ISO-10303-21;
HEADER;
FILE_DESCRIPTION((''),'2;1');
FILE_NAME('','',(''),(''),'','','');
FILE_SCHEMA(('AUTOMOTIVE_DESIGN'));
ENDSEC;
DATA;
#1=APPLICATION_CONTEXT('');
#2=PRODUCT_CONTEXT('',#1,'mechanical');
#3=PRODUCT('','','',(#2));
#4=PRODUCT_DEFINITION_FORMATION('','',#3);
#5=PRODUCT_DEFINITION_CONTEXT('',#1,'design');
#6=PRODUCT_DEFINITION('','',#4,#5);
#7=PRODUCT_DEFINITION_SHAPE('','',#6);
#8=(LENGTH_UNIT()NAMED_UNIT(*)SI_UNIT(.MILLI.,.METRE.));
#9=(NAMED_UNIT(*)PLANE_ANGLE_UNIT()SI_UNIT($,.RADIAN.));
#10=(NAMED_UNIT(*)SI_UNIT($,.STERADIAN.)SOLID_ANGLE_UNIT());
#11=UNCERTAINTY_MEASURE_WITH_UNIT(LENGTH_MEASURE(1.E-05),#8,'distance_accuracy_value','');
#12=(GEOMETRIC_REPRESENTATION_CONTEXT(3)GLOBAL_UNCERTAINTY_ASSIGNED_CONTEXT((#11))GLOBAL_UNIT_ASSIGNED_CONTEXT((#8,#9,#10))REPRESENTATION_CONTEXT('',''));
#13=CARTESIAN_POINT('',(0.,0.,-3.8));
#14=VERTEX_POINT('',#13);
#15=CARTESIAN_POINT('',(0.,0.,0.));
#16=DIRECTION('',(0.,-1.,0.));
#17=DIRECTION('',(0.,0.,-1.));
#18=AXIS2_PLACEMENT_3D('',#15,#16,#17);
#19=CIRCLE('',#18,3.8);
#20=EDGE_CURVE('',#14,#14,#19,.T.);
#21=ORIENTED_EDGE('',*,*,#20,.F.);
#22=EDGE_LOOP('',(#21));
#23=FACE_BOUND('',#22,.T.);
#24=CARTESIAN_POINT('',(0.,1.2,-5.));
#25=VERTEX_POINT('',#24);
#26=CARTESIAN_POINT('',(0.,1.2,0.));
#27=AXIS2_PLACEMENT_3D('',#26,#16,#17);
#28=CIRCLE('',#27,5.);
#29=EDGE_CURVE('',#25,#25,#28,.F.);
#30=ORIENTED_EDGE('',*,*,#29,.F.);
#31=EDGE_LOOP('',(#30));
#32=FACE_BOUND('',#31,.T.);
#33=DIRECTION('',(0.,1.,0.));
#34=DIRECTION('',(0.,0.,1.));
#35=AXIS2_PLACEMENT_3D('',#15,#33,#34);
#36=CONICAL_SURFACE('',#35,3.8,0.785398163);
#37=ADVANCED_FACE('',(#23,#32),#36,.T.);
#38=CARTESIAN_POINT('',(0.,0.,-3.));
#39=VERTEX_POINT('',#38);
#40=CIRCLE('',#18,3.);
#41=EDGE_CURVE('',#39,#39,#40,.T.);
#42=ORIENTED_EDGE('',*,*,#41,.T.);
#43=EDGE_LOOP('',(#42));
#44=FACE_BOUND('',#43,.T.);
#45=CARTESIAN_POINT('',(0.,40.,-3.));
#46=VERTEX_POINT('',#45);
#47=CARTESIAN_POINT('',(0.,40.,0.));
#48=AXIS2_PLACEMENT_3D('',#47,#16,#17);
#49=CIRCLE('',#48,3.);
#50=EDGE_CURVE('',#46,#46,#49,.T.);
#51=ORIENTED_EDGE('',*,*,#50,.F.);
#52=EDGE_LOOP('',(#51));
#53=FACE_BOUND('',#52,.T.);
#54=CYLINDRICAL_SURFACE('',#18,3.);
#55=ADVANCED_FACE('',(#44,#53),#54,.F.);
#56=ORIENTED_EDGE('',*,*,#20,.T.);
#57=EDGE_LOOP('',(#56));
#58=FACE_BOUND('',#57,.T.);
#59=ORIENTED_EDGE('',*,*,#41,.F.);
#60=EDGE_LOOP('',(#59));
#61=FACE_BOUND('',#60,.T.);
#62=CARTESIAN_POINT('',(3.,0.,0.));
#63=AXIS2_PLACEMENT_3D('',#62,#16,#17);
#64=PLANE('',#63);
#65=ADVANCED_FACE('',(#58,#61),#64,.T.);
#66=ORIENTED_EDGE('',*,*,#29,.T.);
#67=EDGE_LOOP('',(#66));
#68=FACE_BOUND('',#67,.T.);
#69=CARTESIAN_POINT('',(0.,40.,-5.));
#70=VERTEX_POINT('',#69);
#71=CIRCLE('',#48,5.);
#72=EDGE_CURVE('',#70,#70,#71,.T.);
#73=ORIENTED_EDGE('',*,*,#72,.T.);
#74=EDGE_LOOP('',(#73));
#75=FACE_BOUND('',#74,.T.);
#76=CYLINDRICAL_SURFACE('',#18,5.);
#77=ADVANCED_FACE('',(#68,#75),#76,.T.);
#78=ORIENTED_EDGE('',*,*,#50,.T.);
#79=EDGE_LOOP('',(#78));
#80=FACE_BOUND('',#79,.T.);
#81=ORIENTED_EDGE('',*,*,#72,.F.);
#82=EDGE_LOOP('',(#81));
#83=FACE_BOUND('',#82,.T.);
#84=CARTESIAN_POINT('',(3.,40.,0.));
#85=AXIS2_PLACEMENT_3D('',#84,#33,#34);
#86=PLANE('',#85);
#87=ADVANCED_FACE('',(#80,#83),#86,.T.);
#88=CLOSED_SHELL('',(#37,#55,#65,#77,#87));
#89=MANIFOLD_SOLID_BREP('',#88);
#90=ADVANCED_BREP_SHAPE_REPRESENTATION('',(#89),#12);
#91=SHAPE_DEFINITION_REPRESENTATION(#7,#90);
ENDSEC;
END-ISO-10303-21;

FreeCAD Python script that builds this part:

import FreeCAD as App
import Part
import Sketcher

V = App.Vector


def edges_at(feature, points):
    """Names of the edges that pass closest to the given points."""
    edges = feature.Shape.Edges
    near = lambda p: min(range(len(edges)), key=lambda i: edges[i].distToShape(Part.Vertex(*p))[0])
    return sorted({f"Edge{near(p) + 1}" for p in points})


def add_polygon(sketch, points):
    """Adds a closed chain of lines whose ends are joined by coincident constraints."""
    first, n = sketch.GeometryCount, len(points)
    for a, b in zip(points, points[1:] + points[:1]):
        sketch.addGeometry(Part.LineSegment(App.Vector(*a, 0), App.Vector(*b, 0)), False)
    for i in range(n):
        sketch.addConstraint(Sketcher.Constraint("Coincident", first + i, 2, first + (i + 1) % n, 1))

doc = App.newDocument("Part")
body = doc.addObject("PartDesign::Body", "Body")

# Sketch on XY plane
sketch1 = body.newObject("Sketcher::SketchObject", "Sketch")
sketch1.AttachmentSupport = (doc.getObject("XY_Plane"), [""])
sketch1.MapMode = "FlatFace"
add_polygon(sketch1, [(3, 40), (3, 0), (5, 0), (5, 40)])  # lines 0-3
sketch1.addConstraint(Sketcher.Constraint("Vertical", 0))
sketch1.addConstraint(Sketcher.Constraint("Horizontal", 1))
sketch1.addConstraint(Sketcher.Constraint("Vertical", 2))
sketch1.addConstraint(Sketcher.Constraint("Horizontal", 3))
sketch1.addConstraint(Sketcher.Constraint("PointOnObject", 0, 2, -1))
sketch1.addConstraint(Sketcher.Constraint("DistanceX", 1, 1, 1, 2, 2.0))
sketch1.addConstraint(Sketcher.Constraint("DistanceY", 0, 2, 0, 1, 40.0))
sketch1.addConstraint(Sketcher.Constraint("DistanceX", -1, 1, 0, 2, 3.0))
revolution = body.newObject("PartDesign::Revolution", "Revolution")
revolution.Profile = sketch1
revolution.ReferenceAxis = (sketch1, ["V_Axis"])
revolution.Angle = 360
doc.recompute()

chamfer = body.newObject("PartDesign::Chamfer", "Chamfer")
chamfer.Base = (revolution, edges_at(revolution, [(-5, 0, 0)]))
chamfer.Size = 1.2

doc.recompute()
